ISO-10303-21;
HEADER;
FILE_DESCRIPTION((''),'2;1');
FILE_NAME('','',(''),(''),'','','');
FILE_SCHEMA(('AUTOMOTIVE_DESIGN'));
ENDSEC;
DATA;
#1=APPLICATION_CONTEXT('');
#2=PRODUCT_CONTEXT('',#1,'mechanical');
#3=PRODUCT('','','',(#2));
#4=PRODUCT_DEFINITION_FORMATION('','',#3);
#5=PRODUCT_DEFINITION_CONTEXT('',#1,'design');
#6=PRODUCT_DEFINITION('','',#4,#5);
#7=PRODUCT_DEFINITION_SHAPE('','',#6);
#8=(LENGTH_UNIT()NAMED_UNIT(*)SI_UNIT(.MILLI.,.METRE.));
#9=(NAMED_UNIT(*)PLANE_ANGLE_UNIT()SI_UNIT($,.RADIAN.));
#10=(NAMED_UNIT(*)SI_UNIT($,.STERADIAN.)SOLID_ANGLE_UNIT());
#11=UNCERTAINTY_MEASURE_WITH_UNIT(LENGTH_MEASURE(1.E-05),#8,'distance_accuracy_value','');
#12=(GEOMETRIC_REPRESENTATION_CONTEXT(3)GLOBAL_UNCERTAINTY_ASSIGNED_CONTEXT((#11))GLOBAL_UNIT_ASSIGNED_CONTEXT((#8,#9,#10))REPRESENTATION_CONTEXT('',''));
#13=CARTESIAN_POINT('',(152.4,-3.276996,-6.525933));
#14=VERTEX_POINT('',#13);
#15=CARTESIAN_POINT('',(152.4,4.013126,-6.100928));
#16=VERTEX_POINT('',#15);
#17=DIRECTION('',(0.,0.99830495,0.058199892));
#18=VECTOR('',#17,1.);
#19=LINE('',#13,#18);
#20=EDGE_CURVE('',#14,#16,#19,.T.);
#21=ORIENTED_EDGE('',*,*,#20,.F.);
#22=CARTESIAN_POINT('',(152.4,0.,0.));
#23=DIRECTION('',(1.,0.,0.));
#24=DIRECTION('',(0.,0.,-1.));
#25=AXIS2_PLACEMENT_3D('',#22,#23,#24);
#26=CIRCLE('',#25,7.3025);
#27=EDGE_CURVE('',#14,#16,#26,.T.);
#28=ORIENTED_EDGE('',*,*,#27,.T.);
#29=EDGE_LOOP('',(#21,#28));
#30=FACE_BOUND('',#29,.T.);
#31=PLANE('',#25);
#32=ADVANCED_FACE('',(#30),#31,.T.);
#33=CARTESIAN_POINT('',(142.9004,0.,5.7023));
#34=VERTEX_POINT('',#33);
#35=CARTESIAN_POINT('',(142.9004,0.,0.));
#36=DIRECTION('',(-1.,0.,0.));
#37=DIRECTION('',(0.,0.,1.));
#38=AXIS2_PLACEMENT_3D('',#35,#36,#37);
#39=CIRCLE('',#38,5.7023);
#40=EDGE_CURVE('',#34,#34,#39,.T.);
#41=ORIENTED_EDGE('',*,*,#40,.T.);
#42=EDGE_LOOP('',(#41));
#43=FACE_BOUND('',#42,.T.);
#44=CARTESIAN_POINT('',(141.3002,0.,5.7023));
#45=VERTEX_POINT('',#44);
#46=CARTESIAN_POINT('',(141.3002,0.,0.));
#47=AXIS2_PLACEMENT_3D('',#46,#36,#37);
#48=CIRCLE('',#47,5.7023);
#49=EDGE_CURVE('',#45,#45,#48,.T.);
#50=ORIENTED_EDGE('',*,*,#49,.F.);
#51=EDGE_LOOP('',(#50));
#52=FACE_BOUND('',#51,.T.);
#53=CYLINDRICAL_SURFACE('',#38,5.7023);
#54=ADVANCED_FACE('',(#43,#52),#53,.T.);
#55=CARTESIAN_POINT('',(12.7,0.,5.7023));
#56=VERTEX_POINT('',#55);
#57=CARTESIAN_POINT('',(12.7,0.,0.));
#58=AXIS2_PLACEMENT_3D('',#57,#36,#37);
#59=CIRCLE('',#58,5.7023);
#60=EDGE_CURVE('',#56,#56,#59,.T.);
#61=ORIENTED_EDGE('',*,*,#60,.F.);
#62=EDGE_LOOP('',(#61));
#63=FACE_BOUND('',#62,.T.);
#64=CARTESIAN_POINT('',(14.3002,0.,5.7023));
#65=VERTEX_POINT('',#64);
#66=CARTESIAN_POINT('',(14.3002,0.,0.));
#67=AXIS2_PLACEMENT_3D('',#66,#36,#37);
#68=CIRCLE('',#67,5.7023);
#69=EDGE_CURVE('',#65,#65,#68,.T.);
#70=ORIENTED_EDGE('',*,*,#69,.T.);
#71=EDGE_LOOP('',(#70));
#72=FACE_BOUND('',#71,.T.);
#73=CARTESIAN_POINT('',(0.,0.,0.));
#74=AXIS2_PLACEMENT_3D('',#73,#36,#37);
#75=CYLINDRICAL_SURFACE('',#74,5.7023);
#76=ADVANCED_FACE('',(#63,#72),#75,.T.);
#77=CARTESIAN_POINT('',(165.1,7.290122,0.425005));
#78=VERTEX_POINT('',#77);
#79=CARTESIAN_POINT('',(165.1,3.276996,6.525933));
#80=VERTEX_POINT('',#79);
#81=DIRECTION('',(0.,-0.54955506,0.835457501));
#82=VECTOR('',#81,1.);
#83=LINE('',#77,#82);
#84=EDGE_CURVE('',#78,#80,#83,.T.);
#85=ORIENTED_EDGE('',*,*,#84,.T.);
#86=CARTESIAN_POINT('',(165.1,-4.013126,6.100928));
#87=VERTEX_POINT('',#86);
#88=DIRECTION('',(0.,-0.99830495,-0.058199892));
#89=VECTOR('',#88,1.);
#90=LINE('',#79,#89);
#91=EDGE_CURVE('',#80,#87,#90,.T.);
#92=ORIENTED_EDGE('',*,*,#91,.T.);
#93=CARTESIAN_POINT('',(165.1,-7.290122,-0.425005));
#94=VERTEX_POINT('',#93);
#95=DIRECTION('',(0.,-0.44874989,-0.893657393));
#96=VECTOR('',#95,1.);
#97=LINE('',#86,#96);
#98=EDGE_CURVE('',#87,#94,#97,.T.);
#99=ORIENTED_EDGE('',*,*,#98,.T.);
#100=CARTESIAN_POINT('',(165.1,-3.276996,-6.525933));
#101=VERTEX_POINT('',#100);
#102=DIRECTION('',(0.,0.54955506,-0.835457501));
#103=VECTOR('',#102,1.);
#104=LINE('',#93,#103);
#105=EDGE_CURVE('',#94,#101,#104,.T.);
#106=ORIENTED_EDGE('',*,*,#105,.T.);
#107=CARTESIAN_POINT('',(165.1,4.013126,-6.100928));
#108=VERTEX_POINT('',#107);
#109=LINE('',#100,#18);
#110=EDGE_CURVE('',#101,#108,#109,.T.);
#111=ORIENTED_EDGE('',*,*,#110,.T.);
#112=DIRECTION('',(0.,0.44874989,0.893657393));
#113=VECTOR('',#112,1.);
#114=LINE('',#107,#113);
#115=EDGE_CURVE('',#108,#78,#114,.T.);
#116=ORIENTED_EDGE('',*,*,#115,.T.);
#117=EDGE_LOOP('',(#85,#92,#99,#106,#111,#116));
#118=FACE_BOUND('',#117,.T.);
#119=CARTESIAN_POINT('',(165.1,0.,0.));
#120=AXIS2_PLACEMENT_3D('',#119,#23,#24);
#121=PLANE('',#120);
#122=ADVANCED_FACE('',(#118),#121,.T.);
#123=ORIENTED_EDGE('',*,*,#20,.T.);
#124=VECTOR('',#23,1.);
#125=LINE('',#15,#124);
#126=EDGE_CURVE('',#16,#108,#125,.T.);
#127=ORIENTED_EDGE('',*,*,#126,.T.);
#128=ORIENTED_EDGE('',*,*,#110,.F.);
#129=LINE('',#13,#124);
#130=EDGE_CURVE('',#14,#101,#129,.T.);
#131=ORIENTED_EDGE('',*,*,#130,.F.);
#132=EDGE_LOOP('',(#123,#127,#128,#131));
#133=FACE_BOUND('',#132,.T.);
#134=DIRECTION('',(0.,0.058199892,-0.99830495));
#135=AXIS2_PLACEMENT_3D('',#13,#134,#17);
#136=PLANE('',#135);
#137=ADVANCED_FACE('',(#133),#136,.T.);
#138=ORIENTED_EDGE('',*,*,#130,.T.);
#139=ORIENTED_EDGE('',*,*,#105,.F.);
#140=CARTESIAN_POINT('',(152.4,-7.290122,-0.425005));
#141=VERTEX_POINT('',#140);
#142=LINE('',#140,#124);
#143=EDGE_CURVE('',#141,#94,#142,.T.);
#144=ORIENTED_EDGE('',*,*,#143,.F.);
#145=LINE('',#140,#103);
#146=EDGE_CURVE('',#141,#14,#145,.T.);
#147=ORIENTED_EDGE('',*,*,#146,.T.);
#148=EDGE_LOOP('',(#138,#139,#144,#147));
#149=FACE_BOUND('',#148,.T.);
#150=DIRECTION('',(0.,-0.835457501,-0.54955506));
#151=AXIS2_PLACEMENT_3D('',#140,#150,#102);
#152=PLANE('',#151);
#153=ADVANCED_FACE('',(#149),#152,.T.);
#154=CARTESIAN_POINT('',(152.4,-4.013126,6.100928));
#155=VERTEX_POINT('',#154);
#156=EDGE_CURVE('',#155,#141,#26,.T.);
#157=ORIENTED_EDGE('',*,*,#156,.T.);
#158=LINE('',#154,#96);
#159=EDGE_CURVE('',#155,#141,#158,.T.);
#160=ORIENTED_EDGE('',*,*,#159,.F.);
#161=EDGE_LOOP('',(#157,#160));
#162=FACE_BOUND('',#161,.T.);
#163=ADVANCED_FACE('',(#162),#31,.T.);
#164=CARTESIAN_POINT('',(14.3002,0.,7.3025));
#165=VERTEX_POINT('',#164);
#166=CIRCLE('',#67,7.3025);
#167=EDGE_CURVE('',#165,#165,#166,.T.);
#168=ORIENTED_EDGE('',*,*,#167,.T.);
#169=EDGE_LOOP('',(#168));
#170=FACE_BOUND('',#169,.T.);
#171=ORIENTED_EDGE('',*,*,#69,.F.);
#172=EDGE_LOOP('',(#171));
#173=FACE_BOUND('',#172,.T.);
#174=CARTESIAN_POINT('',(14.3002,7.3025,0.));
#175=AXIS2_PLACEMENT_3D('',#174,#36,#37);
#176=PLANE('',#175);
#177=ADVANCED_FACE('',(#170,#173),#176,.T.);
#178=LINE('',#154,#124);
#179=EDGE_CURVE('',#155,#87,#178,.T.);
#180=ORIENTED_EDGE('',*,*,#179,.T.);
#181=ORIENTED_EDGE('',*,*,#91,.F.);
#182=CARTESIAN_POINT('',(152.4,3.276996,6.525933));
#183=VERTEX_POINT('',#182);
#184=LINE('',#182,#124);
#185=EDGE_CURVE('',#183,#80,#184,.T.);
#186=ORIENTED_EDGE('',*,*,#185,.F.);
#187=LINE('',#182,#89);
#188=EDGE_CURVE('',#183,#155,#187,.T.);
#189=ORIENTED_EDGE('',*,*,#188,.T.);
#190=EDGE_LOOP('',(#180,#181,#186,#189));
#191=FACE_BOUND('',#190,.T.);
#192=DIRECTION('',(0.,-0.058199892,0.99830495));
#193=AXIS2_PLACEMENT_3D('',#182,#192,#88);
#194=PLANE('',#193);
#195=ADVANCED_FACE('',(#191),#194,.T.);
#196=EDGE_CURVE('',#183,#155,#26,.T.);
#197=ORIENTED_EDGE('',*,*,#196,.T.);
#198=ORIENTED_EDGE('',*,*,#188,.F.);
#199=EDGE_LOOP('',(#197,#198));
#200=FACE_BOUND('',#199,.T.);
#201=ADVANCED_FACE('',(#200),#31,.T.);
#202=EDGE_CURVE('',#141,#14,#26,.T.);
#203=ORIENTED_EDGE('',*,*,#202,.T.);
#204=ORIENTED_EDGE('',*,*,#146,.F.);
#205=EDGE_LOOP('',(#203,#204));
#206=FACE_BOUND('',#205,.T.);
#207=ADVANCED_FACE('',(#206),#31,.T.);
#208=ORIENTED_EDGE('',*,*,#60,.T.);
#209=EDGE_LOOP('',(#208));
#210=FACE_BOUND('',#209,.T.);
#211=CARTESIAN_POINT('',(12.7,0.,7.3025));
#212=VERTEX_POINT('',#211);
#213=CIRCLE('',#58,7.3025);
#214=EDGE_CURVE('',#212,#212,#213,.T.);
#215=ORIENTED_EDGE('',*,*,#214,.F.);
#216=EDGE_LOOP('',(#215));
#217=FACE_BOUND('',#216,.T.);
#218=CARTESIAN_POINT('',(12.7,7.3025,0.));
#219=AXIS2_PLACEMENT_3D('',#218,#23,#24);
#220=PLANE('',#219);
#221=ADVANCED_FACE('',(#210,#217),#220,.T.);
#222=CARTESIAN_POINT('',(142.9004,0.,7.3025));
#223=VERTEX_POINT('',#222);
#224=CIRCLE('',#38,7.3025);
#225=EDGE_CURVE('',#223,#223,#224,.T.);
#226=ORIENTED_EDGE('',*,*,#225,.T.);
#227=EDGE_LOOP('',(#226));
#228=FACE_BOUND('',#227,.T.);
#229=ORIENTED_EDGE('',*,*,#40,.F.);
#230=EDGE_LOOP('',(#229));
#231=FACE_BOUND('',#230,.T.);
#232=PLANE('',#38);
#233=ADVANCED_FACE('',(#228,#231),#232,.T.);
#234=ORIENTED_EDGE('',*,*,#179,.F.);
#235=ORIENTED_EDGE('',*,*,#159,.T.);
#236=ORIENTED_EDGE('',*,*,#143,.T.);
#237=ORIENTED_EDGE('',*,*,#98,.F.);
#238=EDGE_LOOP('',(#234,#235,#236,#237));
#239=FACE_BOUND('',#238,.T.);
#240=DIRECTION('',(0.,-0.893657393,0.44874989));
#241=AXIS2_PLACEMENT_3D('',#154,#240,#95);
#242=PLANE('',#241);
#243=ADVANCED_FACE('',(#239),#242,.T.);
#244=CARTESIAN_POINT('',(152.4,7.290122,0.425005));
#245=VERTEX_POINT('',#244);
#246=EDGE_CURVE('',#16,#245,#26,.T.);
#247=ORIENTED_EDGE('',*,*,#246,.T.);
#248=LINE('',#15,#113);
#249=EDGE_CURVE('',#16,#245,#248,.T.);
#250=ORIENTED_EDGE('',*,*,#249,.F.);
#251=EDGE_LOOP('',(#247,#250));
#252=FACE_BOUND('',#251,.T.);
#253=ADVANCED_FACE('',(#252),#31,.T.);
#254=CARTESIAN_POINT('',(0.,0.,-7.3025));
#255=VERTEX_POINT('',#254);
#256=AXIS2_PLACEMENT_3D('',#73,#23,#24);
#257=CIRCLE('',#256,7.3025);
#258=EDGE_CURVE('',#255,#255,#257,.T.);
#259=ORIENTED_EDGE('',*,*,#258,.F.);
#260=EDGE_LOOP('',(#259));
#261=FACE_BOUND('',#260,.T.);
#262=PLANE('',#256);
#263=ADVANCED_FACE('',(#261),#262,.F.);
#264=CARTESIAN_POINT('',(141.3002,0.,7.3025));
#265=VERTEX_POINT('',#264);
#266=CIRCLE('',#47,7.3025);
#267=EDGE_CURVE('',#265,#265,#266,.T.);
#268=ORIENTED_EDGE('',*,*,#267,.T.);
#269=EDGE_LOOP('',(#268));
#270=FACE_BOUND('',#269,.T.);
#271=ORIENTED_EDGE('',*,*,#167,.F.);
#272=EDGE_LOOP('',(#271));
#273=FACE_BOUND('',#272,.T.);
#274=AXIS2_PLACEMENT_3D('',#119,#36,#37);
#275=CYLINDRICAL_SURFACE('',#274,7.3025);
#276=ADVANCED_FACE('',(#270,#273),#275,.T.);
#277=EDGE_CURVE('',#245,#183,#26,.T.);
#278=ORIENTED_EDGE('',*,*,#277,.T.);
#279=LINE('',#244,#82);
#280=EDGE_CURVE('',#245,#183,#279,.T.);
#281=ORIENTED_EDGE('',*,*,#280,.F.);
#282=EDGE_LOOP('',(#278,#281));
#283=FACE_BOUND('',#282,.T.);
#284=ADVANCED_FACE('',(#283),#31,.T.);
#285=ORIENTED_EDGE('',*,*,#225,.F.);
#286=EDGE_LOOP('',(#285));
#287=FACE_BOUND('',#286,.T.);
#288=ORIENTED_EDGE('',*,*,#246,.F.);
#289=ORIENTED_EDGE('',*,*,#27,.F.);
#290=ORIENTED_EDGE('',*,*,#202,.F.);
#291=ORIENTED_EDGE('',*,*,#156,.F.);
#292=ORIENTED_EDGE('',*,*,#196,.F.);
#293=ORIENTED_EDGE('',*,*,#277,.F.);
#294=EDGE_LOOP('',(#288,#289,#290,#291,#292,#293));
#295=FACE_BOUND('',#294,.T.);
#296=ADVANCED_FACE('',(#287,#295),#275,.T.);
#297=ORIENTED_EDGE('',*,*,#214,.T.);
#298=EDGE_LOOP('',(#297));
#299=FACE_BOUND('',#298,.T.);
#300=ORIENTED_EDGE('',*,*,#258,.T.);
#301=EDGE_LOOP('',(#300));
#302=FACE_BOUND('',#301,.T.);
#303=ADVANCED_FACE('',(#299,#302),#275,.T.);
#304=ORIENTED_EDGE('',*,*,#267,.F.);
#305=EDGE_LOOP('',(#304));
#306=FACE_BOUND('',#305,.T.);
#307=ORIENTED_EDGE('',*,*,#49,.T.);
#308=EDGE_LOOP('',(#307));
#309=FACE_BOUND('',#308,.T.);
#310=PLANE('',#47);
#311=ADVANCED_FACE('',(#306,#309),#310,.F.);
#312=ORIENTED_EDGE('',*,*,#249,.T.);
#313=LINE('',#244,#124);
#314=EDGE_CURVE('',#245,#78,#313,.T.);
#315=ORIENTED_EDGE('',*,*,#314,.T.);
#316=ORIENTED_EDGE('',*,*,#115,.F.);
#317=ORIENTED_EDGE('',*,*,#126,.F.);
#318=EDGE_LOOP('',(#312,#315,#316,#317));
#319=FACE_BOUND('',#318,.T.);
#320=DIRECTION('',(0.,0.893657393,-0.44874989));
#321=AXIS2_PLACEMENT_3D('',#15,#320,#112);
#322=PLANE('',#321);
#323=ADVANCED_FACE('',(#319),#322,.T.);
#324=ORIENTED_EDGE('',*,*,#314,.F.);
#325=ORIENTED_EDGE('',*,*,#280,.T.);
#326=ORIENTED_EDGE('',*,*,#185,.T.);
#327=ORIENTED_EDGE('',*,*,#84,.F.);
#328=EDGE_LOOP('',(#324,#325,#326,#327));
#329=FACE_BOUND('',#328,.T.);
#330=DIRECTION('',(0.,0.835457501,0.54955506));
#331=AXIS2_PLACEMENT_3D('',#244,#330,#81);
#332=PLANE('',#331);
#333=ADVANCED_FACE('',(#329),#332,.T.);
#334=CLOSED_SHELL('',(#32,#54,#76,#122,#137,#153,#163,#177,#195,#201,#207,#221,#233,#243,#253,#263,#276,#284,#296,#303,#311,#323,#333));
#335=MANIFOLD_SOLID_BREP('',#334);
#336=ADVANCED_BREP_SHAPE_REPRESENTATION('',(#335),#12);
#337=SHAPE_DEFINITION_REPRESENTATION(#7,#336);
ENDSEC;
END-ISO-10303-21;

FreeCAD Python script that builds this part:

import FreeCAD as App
import Part
import Sketcher
from FreeCAD import Vector
Q = App.Units.Quantity

doc = App.newDocument("Part")
params = doc.addObject("Spreadsheet::Sheet", "Params")
for row, (alias, value) in enumerate([
    ("sketch1_diameter", "0.575 in"),
    ("pad1_length", "6.5 in"),
    ("sketch2_width", "0.063 in"),
    ("groove_angle", "360 deg"),
    ("sketch3_diameter", "0.575 in"),
    ("sketch3_diameter2", "0.449 in"),
    ("pocket1_length", "0.063 in"),
    ("pocket2_length", "0.5 in"),
], start=1):
    params.set(f"A{row}", alias)
    params.set(f"B{row}", "=" + value)
    params.setAlias(f"B{row}", alias)

body = doc.addObject("PartDesign::Body", "Body")

# Sketch on YZ plane
sketch1 = body.newObject("Sketcher::SketchObject", "Sketch")
sketch1.AttachmentSupport = (doc.getObject("YZ_Plane"), [""])
sketch1.MapMode = "FlatFace"
sketch1.addGeometry(Part.Circle(Vector(0, 0, 0), Vector(0, 0, 1), 7.3025), False)
sketch1.addConstraint(Sketcher.Constraint("Coincident", 0, 3, -1, 1))
sketch1.addConstraint(Sketcher.Constraint("Diameter", 0, Q("0.575 in")))
sketch1.setExpression("Constraints[1]", "Params.sketch1_diameter")
pad1 = body.newObject("PartDesign::Pad", "Pad")
pad1.Profile = sketch1
pad1.setExpression("Length", "Params.pad1_length")

# Sketch on XY plane
sketch2 = body.newObject("Sketcher::SketchObject", "Sketch001")
sketch2.AttachmentSupport = (doc.getObject("XY_Plane"), [""])
sketch2.MapMode = "FlatFace"
sketch2.addGeometry(Part.LineSegment(Vector(12.7, 7.3025, 0), Vector(12.7, 5.7023, 0)), False)
sketch2.addGeometry(Part.LineSegment(Vector(12.7, 5.7023, 0), Vector(14.3002, 5.7023, 0)), False)
sketch2.addGeometry(Part.LineSegment(Vector(14.3002, 5.7023, 0), Vector(14.3002, 7.3025, 0)), False)
sketch2.addGeometry(Part.LineSegment(Vector(14.3002, 7.3025, 0), Vector(12.7, 7.3025, 0)), False)
sketch2.addConstraint(Sketcher.Constraint("Coincident", 0, 2, 1, 1))
sketch2.addConstraint(Sketcher.Constraint("Coincident", 1, 2, 2, 1))
sketch2.addConstraint(Sketcher.Constraint("Coincident", 2, 2, 3, 1))
sketch2.addConstraint(Sketcher.Constraint("Coincident", 3, 2, 0, 1))
sketch2.addConstraint(Sketcher.Constraint("Vertical", 0))
sketch2.addConstraint(Sketcher.Constraint("Horizontal", 1))
sketch2.addConstraint(Sketcher.Constraint("Vertical", 2))
sketch2.addConstraint(Sketcher.Constraint("Horizontal", 3))
sketch2.addConstraint(Sketcher.Constraint("Equal", 3, 0))
sketch2.addConstraint(Sketcher.Constraint("DistanceX", -1, 1, 0, 2, Q("0.5 in")))
sketch2.addConstraint(Sketcher.Constraint("DistanceX", 1, 1, 1, 2, Q("0.063 in")))
sketch2.addConstraint(Sketcher.Constraint("DistanceY", -1, 1, 0, 2, Q("0.2245 in")))
sketch2.setExpression("Constraints[10]", "Params.sketch2_width")
groove = body.newObject("PartDesign::Groove", "Groove")
groove.Profile = sketch2
groove.ReferenceAxis = (sketch2, ["H_Axis"])
groove.setExpression("Angle", "Params.groove_angle")

# Sketch on YZ plane
sketch3 = body.newObject("Sketcher::SketchObject", "Sketch002")
sketch3.AttachmentSupport = (doc.getObject("YZ_Plane"), [""])
sketch3.MapMode = "FlatFace"
sketch3.AttachmentOffset = App.Placement(Vector(0, 0, 5.563 * 25.4), App.Rotation())
sketch3.addGeometry(Part.Circle(Vector(0, 0, 0), Vector(0, 0, 1), 7.3025), False)
sketch3.addGeometry(Part.Circle(Vector(0, 0, 0), Vector(0, 0, 1), 5.7023), False)
sketch3.addConstraint(Sketcher.Constraint("Coincident", 0, 3, -1, 1))
sketch3.addConstraint(Sketcher.Constraint("Coincident", 1, 3, -1, 1))
sketch3.addConstraint(Sketcher.Constraint("Diameter", 0, Q("0.575 in")))
sketch3.addConstraint(Sketcher.Constraint("Diameter", 1, Q("0.449 in")))
sketch3.setExpression("Constraints[2]", "Params.sketch3_diameter")
sketch3.setExpression("Constraints[3]", "Params.sketch3_diameter2")
pocket1 = body.newObject("PartDesign::Pocket", "Pocket")
pocket1.Profile = sketch3
pocket1.setExpression("Length", "Params.pocket1_length")
pocket1.Reversed = True

# Sketch on YZ plane
sketch4 = body.newObject("Sketcher::SketchObject", "Sketch003")
sketch4.AttachmentSupport = (doc.getObject("YZ_Plane"), [""])
sketch4.MapMode = "FlatFace"
sketch4.AttachmentOffset = App.Placement(Vector(0, 0, 6.5 * 25.4), App.Rotation())
sketch4.addGeometry(Part.LineSegment(Vector(24.941, 24.941, 0), Vector(-24.941, 24.941, 0)), False)
sketch4.addGeometry(Part.LineSegment(Vector(-24.941, 24.941, 0), Vector(-24.941, -24.941, 0)), False)
sketch4.addGeometry(Part.LineSegment(Vector(-24.941, -24.941, 0), Vector(24.941, -24.941, 0)), False)
sketch4.addGeometry(Part.LineSegment(Vector(24.941, -24.941, 0), Vector(24.941, 24.941, 0)), False)
sketch4.addGeometry(Part.LineSegment(Vector(7.290122, 0.425005, 0), Vector(4.013126, -6.100928, 0)), False)
sketch4.addGeometry(Part.LineSegment(Vector(4.013126, -6.100928, 0), Vector(-3.276996, -6.525933, 0)), False)
sketch4.addGeometry(Part.LineSegment(Vector(-3.276996, -6.525933, 0), Vector(-7.290122, -0.425005, 0)), False)
sketch4.addGeometry(Part.LineSegment(Vector(-7.290122, -0.425005, 0), Vector(-4.013126, 6.100928, 0)), False)
sketch4.addGeometry(Part.LineSegment(Vector(-4.013126, 6.100928, 0), Vector(3.276996, 6.525933, 0)), False)
sketch4.addGeometry(Part.LineSegment(Vector(3.276996, 6.525933, 0), Vector(7.290122, 0.425005, 0)), False)
sketch4.addConstraint(Sketcher.Constraint("Coincident", 0, 2, 1, 1))
sketch4.addConstraint(Sketcher.Constraint("Coincident", 1, 2, 2, 1))
sketch4.addConstraint(Sketcher.Constraint("Coincident", 2, 2, 3, 1))
sketch4.addConstraint(Sketcher.Constraint("Coincident", 3, 2, 0, 1))
sketch4.addConstraint(Sketcher.Constraint("Coincident", 4, 2, 5, 1))
sketch4.addConstraint(Sketcher.Constraint("Coincident", 5, 2, 6, 1))
sketch4.addConstraint(Sketcher.Constraint("Coincident", 6, 2, 7, 1))
sketch4.addConstraint(Sketcher.Constraint("Coincident", 7, 2, 8, 1))
sketch4.addConstraint(Sketcher.Constraint("Coincident", 8, 2, 9, 1))
sketch4.addConstraint(Sketcher.Constraint("Coincident", 9, 2, 4, 1))
sketch4.addConstraint(Sketcher.Constraint("Horizontal", 0))
sketch4.addConstraint(Sketcher.Constraint("Vertical", 1))
sketch4.addConstraint(Sketcher.Constraint("Horizontal", 2))
sketch4.addConstraint(Sketcher.Constraint("Vertical", 3))
sketch4.addConstraint(Sketcher.Constraint("Symmetric", 0, 2, 2, 2, -1, 1))
sketch4.addConstraint(Sketcher.Constraint("Symmetric", 4, 2, 7, 2, -1, 1))
sketch4.addConstraint(Sketcher.Constraint("Symmetric", 5, 2, 8, 2, -1, 1))
sketch4.addConstraint(Sketcher.Constraint("Symmetric", 6, 2, 9, 2, -1, 1))
sketch4.addConstraint(Sketcher.Constraint("Equal", 2, 1))
sketch4.addConstraint(Sketcher.Constraint("Equal", 4, 5))
sketch4.addConstraint(Sketcher.Constraint("Equal", 5, 6))
sketch4.addConstraint(Sketcher.Constraint("Distance", 4, Q("0.2875 in")))
sketch4.addConstraint(Sketcher.Constraint("DistanceX", 0, 2, 0, 1, 49.882))
sketch4.addConstraint(Sketcher.Constraint("DistanceY", 4, 2, -1, 1, 6.100928))
sketch4.addConstraint(Sketcher.Constraint("DistanceX", 6, 2, -1, 1, 7.290122))
sketch4.addConstraint(Sketcher.Constraint("DistanceX", 5, 2, 4, 2, 7.290122))
pocket2 = body.newObject("PartDesign::Pocket", "Pocket001")
pocket2.Profile = sketch4
pocket2.setExpression("Length", "Params.pocket2_length")

doc.recompute()
